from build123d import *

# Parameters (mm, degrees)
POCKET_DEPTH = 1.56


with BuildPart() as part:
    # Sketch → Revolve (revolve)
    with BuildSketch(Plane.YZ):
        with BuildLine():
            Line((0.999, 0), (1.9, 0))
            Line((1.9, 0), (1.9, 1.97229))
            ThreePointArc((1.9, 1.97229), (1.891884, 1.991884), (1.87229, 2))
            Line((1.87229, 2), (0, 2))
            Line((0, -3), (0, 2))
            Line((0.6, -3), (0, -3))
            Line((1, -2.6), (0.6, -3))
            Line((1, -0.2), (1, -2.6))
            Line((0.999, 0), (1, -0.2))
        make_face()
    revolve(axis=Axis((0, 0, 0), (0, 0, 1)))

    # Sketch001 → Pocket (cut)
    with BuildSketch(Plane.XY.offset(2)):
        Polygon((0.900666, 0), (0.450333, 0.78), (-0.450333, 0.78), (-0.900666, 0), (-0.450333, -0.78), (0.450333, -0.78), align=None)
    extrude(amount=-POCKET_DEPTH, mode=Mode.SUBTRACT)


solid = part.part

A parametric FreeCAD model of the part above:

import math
import FreeCAD as App
import Part
import Sketcher
from FreeCAD import Vector
Q = App.Units.Quantity


def add_polygon(sketch, points):
    """Adds a closed chain of lines whose ends are joined by coincident constraints."""
    first, n = sketch.GeometryCount, len(points)
    for a, b in zip(points, points[1:] + points[:1]):
        sketch.addGeometry(Part.LineSegment(App.Vector(*a, 0), App.Vector(*b, 0)), False)
    for i in range(n):
        sketch.addConstraint(Sketcher.Constraint("Coincident", first + i, 2, first + (i + 1) % n, 1))

doc = App.newDocument("Part")
body = doc.addObject("PartDesign::Body", "Body")

# Sketch on YZ plane
sketch1 = doc.addObject("Sketcher::SketchObject", "Sketch")
body.addObject(sketch1)
sketch1.AttachmentSupport = (doc.YZ_Plane, [""])
sketch1.MapMode = "FlatFace"
sketch1.addGeometry([
    Part.LineSegment(Vector(0.999, 0, 0), Vector(1.9, 0, 0)),  # 0
    Part.LineSegment(Vector(1.9, 0, 0), Vector(1.9, 1.972, 0)),  # 1
    Part.ArcOfCircle(Part.Circle(Vector(1.872, 1.972, 0), Vector(0, 0, 1), 0.028), math.radians(0), math.radians(90)),  # 2
    Part.LineSegment(Vector(1.872, 2, 0), Vector(0, 2, 0)),  # 3
    Part.LineSegment(Vector(0, 2, 0), Vector(0, -3, 0)),  # 4
    Part.LineSegment(Vector(0, -3, 0), Vector(0.6, -3, 0)),  # 5
    Part.LineSegment(Vector(0.6, -3, 0), Vector(1, -2.6, 0)),  # 6
    Part.LineSegment(Vector(1, -2.6, 0), Vector(1, -0.2, 0)),  # 7
    Part.LineSegment(Vector(1, -0.2, 0), Vector(0.999, 0, 0)),  # 8
], False)
sketch1.addConstraint([
    Sketcher.Constraint("Coincident", 0, 2, 1, 1),
    Sketcher.Constraint("Coincident", 1, 2, 2, 1),
    Sketcher.Constraint("Coincident", 2, 2, 3, 1),
    Sketcher.Constraint("Coincident", 3, 2, 4, 1),
    Sketcher.Constraint("Coincident", 4, 2, 5, 1),
    Sketcher.Constraint("Coincident", 5, 2, 6, 1),
    Sketcher.Constraint("Coincident", 6, 2, 7, 1),
    Sketcher.Constraint("Coincident", 7, 2, 8, 1),
    Sketcher.Constraint("Coincident", 8, 2, 0, 1),
    Sketcher.Constraint("Horizontal", 0),
    Sketcher.Constraint("Vertical", 1),
    Sketcher.Constraint("Horizontal", 3),
    Sketcher.Constraint("Vertical", 4),
    Sketcher.Constraint("Horizontal", 5),
    Sketcher.Constraint("Vertical", 7),
    Sketcher.Constraint("PointOnObject", 0, 2, -1),
    Sketcher.Constraint("PointOnObject", 3, 2, -2),
    Sketcher.Constraint("Horizontal", 2, 3, 1, 2),
    Sketcher.Constraint("DistanceY", 4, 2, 4, 1, Q("5 mm")),
    Sketcher.Constraint("Angle", 6, Q("45 deg")),
    Sketcher.Constraint("DistanceX", 5, 1, 5, 2, Q("0.6 mm")),
    Sketcher.Constraint("DistanceY", 7, 1, 7, 2, Q("2.4 mm")),
    Sketcher.Constraint("DistanceY", -1, 1, 2, 2, Q("2 mm")),
    Sketcher.Constraint("DistanceX", -1, 1, 6, 2, Q("1 mm")),
    Sketcher.Constraint("DistanceX", -1, 1, 0, 2, Q("1.9 mm")),
    Sketcher.Constraint("DistanceX", 0, 1, 0, 2, Q("0.901 mm")),
    Sketcher.Constraint("Radius", 2, Q("0.02771 mm")),
    Sketcher.Constraint("DistanceX", 3, 2, 3, 1, Q("1.87229 mm")),
])
revolution = doc.addObject("PartDesign::Revolution", "Revolution")
body.addObject(revolution)
revolution.Profile = sketch1
revolution.ReferenceAxis = (sketch1, ["V_Axis"])
revolution.Angle = 360

# Sketch on XY plane
sketch2 = doc.addObject("Sketcher::SketchObject", "Sketch001")
body.addObject(sketch2)
sketch2.AttachmentSupport = (doc.XY_Plane, [""])
sketch2.MapMode = "FlatFace"
sketch2.AttachmentOffset = App.Placement(Vector(0, 0, 2), App.Rotation())
add_polygon(sketch2, [(0.9, 0), (0.5, 0.8), (-0.5, 0.8), (-0.9, 0), (-0.5, -0.8), (0.5, -0.8)])  # lines 0-5
sketch2.addConstraint([
    Sketcher.Constraint("Horizontal", 1),
    Sketcher.Constraint("Horizontal", 4),
    Sketcher.Constraint("Symmetric", 0, 2, 3, 2, -1, 1),
    Sketcher.Constraint("Symmetric", 2, 2, 5, 2, -1, 1),
    Sketcher.Constraint("PointOnObject", 2, 2, -1),
    Sketcher.Constraint("Parallel", 2, 5),
    Sketcher.Constraint("Vertical", 1, 2, 3, 2),
    Sketcher.Constraint("Angle", 0, Q("119.999988 deg")),
    Sketcher.Constraint("DistanceY", -1, 1, 0, 2, Q("0.78 mm")),
    Sketcher.Constraint("DistanceX", 2, 2, 0, 2, Q("1.350999 mm")),
])
pocket1 = doc.addObject("PartDesign::Pocket", "Pocket")
body.addObject(pocket1)
pocket1.Profile = sketch2
pocket1.Length = 1.56

doc.recompute()
